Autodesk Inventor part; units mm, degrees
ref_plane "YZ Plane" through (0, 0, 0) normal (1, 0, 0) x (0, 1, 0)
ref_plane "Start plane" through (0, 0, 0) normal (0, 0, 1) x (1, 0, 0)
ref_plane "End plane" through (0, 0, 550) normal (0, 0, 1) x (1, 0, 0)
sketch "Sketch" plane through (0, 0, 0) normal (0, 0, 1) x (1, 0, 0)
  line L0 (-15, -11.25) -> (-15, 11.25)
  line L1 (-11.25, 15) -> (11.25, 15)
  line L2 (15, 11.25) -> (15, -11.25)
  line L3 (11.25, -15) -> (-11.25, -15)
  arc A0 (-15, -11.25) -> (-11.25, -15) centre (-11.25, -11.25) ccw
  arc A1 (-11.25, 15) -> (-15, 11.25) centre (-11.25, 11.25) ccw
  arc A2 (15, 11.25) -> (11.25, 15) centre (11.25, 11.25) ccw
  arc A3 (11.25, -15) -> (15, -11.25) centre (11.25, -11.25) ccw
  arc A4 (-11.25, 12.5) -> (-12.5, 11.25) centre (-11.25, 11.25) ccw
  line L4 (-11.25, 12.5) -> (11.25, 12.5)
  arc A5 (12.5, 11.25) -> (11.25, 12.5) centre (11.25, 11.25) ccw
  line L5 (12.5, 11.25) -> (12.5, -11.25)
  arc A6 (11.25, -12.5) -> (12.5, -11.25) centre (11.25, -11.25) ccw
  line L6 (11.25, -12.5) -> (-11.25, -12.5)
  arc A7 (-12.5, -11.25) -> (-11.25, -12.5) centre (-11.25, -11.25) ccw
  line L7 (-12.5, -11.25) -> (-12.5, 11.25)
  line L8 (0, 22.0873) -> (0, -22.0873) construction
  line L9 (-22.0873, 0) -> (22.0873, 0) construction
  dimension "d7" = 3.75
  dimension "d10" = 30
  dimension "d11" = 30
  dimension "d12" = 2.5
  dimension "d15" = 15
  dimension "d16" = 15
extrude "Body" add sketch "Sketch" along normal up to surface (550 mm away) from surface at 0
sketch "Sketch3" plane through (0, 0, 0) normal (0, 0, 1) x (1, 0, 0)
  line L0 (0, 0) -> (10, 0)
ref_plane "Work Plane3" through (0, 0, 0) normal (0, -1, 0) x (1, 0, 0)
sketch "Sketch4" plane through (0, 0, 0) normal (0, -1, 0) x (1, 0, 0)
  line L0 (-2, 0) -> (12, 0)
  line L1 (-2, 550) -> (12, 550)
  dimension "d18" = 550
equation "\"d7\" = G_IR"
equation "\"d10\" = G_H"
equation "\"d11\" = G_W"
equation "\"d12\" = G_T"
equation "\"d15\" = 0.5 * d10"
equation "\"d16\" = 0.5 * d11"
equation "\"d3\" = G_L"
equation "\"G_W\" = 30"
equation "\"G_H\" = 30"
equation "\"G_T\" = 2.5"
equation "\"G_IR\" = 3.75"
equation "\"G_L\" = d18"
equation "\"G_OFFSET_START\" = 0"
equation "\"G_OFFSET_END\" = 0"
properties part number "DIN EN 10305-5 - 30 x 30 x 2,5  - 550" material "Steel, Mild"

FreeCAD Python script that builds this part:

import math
import FreeCAD as App
import Part
import Sketcher

V = App.Vector

doc = App.newDocument("Part")
body = doc.addObject("PartDesign::Body", "Body")

# Sketch on XY plane
sketch1 = doc.addObject("Sketcher::SketchObject", "Sketch")
body.addObject(sketch1)
sketch1.AttachmentSupport = (doc.XY_Plane, [""])
sketch1.MapMode = "FlatFace"
sketch1.addGeometry([
    Part.LineSegment(V(-15, 11.25, 0), V(-15, -11.25, 0)),  # 0
    Part.ArcOfCircle(Part.Circle(V(-11.25, -11.25, 0), V(0, 0, 1), 3.75), math.radians(180), math.radians(270)),  # 1
    Part.LineSegment(V(-11.25, -15, 0), V(11.25, -15, 0)),  # 2
    Part.ArcOfCircle(Part.Circle(V(11.25, -11.25, 0), V(0, 0, 1), 3.75), math.radians(-90), math.radians(0)),  # 3
    Part.LineSegment(V(15, -11.25, 0), V(15, 11.25, 0)),  # 4
    Part.ArcOfCircle(Part.Circle(V(11.25, 11.25, 0), V(0, 0, 1), 3.75), math.radians(0), math.radians(90)),  # 5
    Part.LineSegment(V(11.25, 15, 0), V(-11.25, 15, 0)),  # 6
    Part.ArcOfCircle(Part.Circle(V(-11.25, 11.25, 0), V(0, 0, 1), 3.75), math.radians(90), math.radians(180)),  # 7
    Part.ArcOfCircle(Part.Circle(V(-11.25, 11.25, 0), V(0, 0, 1), 1.25), math.radians(90), math.radians(180)),  # 8
    Part.LineSegment(V(-11.25, 12.5, 0), V(11.25, 12.5, 0)),  # 9
    Part.ArcOfCircle(Part.Circle(V(11.25, 11.25, 0), V(0, 0, 1), 1.25), math.radians(0), math.radians(90)),  # 10
    Part.LineSegment(V(12.5, 11.25, 0), V(12.5, -11.25, 0)),  # 11
    Part.ArcOfCircle(Part.Circle(V(11.25, -11.25, 0), V(0, 0, 1), 1.25), math.radians(-90), math.radians(0)),  # 12
    Part.LineSegment(V(11.25, -12.5, 0), V(-11.25, -12.5, 0)),  # 13
    Part.ArcOfCircle(Part.Circle(V(-11.25, -11.25, 0), V(0, 0, 1), 1.25), math.radians(180), math.radians(270)),  # 14
    Part.LineSegment(V(-12.5, -11.25, 0), V(-12.5, 11.25, 0)),  # 15
], False)
sketch1.addConstraint([
    Sketcher.Constraint("Tangent", 0, 2, 1, 1),
    Sketcher.Constraint("Tangent", 1, 2, 2, 1),
    Sketcher.Constraint("Tangent", 2, 2, 3, 1),
    Sketcher.Constraint("Tangent", 3, 2, 4, 1),
    Sketcher.Constraint("Tangent", 4, 2, 5, 1),
    Sketcher.Constraint("Tangent", 5, 2, 6, 1),
    Sketcher.Constraint("Tangent", 6, 2, 7, 1),
    Sketcher.Constraint("Tangent", 7, 2, 0, 1),
    Sketcher.Constraint("Tangent", 8, 1, 9, 1),
    Sketcher.Constraint("Tangent", 9, 2, 10, 2),
    Sketcher.Constraint("Tangent", 10, 1, 11, 1),
    Sketcher.Constraint("Tangent", 11, 2, 12, 2),
    Sketcher.Constraint("Tangent", 12, 1, 13, 1),
    Sketcher.Constraint("Tangent", 13, 2, 14, 2),
    Sketcher.Constraint("Tangent", 14, 1, 15, 1),
    Sketcher.Constraint("Tangent", 15, 2, 8, 2),
    Sketcher.Constraint("Vertical", 0),
    Sketcher.Constraint("Horizontal", 2),
    Sketcher.Constraint("Vertical", 4),
    Sketcher.Constraint("Horizontal", 6),
    Sketcher.Constraint("Horizontal", 9),
    Sketcher.Constraint("Vertical", 11),
    Sketcher.Constraint("Horizontal", 13),
    Sketcher.Constraint("Vertical", 15),
    Sketcher.Constraint("Coincident", 8, 3, 7, 3),
    Sketcher.Constraint("Coincident", 10, 3, 5, 3),
    Sketcher.Constraint("Coincident", 12, 3, 3, 3),
    Sketcher.Constraint("Equal", 1, 3),
    Sketcher.Constraint("Equal", 3, 5),
    Sketcher.Constraint("Equal", 5, 7),
    Sketcher.Constraint("Equal", 12, 14),
    Sketcher.Constraint("Symmetric", 1, 3, 5, 3, -1, 1),
    Sketcher.Constraint("Equal", 13, 0),
    Sketcher.Constraint("Radius", 1, 3.75),
    Sketcher.Constraint("Radius", 8, 1.25),
    Sketcher.Constraint("DistanceX", 0, 2, -1, 1, 15.0),
])
pad1 = doc.addObject("PartDesign::Pad", "Pad")
body.addObject(pad1)
pad1.Profile = sketch1
pad1.Length = 550

doc.recompute()
